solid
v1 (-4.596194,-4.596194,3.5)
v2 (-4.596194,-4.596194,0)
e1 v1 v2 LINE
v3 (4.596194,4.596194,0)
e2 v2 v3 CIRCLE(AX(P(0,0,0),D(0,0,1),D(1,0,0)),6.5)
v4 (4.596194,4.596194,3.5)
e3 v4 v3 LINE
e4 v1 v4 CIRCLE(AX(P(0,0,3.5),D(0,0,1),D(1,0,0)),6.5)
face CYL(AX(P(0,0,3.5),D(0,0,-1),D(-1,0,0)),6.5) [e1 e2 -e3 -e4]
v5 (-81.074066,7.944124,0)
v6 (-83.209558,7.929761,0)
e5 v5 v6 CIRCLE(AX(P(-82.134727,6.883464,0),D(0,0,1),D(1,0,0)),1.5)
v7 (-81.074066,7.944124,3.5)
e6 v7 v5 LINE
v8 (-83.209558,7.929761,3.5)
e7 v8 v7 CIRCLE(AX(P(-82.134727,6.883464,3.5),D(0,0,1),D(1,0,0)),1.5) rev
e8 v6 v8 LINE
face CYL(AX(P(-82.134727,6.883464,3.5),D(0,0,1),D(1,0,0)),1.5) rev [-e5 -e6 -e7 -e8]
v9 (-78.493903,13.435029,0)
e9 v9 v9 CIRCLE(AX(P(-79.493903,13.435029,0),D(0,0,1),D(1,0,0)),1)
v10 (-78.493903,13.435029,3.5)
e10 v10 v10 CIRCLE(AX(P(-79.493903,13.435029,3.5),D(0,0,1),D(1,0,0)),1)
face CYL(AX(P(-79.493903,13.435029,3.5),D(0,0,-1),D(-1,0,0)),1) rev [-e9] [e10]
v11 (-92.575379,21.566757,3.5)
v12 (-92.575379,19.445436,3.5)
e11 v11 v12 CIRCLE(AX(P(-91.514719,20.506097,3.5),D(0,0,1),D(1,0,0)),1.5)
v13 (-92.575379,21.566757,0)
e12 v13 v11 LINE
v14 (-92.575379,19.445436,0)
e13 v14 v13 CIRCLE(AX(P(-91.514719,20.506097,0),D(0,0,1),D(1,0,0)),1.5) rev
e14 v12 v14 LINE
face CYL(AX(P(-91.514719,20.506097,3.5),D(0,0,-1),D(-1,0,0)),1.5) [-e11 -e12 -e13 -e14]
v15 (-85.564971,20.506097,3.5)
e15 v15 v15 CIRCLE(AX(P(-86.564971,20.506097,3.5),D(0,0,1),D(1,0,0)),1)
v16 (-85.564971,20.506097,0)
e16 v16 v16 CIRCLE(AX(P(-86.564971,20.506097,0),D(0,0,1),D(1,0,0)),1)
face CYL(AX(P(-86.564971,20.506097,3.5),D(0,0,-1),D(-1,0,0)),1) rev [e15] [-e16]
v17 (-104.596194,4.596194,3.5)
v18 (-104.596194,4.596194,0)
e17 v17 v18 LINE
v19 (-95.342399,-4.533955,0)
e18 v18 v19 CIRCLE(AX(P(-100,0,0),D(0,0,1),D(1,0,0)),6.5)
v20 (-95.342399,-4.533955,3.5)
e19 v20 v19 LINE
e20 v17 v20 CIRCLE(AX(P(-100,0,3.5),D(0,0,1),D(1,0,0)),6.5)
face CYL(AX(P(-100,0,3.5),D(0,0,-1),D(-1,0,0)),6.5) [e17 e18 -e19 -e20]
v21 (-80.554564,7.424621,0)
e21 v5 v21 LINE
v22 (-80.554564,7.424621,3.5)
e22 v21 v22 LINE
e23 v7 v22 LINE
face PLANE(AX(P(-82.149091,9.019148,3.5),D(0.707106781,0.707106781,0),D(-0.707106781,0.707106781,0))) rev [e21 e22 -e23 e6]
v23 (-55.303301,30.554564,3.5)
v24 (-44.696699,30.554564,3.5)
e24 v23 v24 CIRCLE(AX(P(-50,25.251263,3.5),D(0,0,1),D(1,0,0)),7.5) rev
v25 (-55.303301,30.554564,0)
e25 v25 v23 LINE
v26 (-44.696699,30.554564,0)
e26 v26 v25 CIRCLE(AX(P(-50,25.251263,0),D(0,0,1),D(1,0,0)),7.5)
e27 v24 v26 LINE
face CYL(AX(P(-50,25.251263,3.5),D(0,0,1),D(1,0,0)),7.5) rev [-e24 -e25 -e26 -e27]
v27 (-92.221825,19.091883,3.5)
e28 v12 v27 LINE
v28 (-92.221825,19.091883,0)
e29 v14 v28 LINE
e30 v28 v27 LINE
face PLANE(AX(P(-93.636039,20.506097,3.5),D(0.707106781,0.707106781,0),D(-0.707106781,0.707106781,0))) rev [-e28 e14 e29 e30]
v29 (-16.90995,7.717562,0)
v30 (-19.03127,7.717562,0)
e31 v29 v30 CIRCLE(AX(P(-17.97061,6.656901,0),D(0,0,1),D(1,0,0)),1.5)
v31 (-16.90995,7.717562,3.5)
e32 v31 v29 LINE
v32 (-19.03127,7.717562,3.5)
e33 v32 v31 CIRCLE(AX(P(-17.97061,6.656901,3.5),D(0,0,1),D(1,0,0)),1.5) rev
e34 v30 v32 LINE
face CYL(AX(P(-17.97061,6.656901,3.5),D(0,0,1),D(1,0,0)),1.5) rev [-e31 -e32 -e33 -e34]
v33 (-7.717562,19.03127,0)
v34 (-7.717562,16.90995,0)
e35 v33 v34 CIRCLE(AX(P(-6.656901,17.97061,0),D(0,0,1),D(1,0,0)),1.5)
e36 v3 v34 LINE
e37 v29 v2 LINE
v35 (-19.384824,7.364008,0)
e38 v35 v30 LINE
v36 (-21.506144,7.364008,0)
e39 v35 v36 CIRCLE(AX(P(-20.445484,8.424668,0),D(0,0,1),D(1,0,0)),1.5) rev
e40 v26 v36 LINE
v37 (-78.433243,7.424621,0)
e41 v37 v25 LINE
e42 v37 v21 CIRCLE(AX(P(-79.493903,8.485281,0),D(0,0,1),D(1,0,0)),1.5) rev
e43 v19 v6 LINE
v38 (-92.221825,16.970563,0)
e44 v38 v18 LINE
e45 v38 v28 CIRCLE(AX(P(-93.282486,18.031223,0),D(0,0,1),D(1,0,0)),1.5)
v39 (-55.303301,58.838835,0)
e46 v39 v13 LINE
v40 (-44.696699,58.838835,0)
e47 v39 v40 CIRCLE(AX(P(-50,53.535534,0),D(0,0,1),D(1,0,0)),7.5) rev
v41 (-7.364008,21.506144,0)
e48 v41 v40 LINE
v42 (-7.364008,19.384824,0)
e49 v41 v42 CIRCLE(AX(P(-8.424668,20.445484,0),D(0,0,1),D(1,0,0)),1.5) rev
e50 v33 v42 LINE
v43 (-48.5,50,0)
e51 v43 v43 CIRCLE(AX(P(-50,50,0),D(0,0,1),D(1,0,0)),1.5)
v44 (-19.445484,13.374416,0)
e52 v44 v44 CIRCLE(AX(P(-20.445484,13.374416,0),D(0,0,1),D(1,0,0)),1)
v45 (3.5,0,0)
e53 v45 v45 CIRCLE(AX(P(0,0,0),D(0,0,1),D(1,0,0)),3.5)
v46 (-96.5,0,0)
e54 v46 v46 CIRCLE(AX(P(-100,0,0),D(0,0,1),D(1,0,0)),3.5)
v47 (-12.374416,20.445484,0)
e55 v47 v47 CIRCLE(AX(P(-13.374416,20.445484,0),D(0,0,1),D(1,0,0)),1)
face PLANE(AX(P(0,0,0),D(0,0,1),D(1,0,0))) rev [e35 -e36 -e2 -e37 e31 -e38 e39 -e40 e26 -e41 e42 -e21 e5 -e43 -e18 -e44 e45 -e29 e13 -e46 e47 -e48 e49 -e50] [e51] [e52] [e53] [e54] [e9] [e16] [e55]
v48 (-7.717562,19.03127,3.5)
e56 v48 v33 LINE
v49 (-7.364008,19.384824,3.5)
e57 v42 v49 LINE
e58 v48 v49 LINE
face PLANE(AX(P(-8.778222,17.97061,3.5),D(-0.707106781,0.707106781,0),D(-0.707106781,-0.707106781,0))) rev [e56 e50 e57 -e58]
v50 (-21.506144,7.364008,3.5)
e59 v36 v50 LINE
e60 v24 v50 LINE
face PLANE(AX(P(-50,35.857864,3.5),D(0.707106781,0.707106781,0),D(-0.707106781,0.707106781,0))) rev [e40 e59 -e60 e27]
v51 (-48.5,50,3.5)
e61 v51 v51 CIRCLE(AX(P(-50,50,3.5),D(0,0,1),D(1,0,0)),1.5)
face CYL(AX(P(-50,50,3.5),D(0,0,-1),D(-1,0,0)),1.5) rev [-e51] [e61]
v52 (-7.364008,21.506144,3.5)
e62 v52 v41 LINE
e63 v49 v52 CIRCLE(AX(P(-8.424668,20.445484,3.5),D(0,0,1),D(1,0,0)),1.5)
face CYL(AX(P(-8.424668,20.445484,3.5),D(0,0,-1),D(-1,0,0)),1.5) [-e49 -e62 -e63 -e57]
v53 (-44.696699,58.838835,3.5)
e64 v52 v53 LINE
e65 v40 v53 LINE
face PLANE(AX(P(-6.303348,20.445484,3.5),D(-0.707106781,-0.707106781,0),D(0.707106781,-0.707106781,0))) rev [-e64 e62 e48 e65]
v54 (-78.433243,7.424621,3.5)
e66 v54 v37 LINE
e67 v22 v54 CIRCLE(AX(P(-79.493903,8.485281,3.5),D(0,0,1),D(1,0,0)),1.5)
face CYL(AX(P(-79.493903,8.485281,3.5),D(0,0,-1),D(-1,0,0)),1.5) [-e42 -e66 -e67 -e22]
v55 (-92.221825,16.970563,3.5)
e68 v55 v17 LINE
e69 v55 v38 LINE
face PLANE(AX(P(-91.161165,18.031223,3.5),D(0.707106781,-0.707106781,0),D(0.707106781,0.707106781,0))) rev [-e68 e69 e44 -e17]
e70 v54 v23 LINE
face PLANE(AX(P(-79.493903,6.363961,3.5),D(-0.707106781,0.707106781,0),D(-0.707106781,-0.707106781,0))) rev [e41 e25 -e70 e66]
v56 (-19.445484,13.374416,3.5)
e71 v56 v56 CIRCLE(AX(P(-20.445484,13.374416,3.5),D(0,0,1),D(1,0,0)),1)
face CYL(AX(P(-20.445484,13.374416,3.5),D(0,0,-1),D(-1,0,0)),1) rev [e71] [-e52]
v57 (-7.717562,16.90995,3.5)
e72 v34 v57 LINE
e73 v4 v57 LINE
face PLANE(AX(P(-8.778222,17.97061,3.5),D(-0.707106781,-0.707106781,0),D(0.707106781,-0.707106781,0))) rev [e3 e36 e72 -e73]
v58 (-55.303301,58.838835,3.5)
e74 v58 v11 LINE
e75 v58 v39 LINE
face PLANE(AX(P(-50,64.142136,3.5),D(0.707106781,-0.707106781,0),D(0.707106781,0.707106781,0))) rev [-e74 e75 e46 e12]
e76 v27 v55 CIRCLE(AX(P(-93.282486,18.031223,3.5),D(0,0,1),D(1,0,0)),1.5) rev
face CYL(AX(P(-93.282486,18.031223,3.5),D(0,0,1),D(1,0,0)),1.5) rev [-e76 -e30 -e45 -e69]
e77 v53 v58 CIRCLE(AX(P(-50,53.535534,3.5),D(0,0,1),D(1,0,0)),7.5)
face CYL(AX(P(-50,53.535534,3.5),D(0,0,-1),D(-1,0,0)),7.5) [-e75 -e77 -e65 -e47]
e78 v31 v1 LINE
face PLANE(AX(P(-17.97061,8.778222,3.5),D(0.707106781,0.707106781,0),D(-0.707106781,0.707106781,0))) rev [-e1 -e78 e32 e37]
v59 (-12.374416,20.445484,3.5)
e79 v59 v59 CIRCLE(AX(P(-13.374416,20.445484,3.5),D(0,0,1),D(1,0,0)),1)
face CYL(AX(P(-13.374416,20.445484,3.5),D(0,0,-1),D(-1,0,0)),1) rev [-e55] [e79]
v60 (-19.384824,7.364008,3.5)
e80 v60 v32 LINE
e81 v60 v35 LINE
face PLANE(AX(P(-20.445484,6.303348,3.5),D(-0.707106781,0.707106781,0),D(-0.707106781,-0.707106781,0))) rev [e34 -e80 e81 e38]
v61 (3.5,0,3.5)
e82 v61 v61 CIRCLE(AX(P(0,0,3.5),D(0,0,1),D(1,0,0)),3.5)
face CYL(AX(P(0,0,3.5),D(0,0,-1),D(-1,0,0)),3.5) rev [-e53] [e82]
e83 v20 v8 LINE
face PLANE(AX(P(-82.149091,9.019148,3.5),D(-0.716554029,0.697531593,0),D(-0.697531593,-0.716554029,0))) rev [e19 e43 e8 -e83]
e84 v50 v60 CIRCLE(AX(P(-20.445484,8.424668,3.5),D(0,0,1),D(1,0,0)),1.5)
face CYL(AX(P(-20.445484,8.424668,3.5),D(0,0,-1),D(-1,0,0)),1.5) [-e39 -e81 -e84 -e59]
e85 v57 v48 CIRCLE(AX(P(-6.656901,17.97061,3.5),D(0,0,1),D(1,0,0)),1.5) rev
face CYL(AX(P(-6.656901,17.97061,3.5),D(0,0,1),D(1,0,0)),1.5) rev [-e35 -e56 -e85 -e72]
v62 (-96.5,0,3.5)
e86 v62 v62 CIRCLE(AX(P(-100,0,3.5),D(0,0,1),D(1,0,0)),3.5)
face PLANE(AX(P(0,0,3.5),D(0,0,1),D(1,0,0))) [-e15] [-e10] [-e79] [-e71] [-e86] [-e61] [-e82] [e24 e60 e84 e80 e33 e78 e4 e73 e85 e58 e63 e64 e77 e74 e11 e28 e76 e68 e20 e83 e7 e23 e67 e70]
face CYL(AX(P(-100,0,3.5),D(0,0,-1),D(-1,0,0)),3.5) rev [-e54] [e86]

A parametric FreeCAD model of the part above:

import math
import FreeCAD as App
import Part
import Sketcher
from FreeCAD import Vector


def edges_at(feature, points):
    """Names of the edges that pass closest to the given points."""
    edges = feature.Shape.Edges
    near = lambda p: min(range(len(edges)), key=lambda i: edges[i].distToShape(Part.Vertex(*p))[0])
    return sorted({f"Edge{near(p) + 1}" for p in points})

doc = App.newDocument("Part")
params = doc.addObject("Spreadsheet::Sheet", "Params")
for row, (alias, value) in enumerate([
    ("sketch1_diameter", "7 mm"),
    ("sketch1_diameter2", "2 mm"),
    ("sketch1_diameter3", "3 mm"),
    ("sketch1_radius", "6.5 mm"),
    ("sketch1_length", "19 mm"),
    ("pad1_length", "3.5 mm"),
    ("fillet_radius", "7.5 mm"),
    ("fillet2_radius", "7.5 mm"),
    ("fillet3_radius", "1.5 mm"),
    ("fillet4_radius", "1.5 mm"),
    ("fillet5_radius", "1.5 mm"),
], start=1):
    params.set(f"A{row}", alias)
    params.set(f"B{row}", "=" + value)
    params.setAlias(f"B{row}", alias)

body = doc.addObject("PartDesign::Body", "Body")

sketch1 = doc.addObject("Sketcher::SketchObject", "Sketch")
body.addObject(sketch1)
sketch1.AttachmentSupport = (doc.XY_Plane, [""])
sketch1.MapMode = "FlatFace"
sketch1.addGeometry([
    Part.LineSegment(Vector(-91.2, 18, 0), Vector(-104.6, 4.6, 0)),
    Part.ArcOfCircle(Part.Circle(Vector(-100, 0, 0), Vector(0, 0, 1), 6.5), math.radians(135), math.radians(316)),
    Part.LineSegment(Vector(-95.3, -4.5, 0), Vector(-82.1, 9, 0)),
    Part.LineSegment(Vector(-82.1, 9, 0), Vector(-79.5, 6.4, 0)),
    Part.LineSegment(Vector(-79.5, 6.4, 0), Vector(-50, 35.9, 0)),
    Part.LineSegment(Vector(-50, 35.9, 0), Vector(-20.4, 6.3, 0)),
    Part.LineSegment(Vector(-20.4, 6.3, 0), Vector(-18, 8.8, 0)),
    Part.LineSegment(Vector(-18, 8.8, 0), Vector(-4.6, -4.6, 0)),
    Part.ArcOfCircle(Part.Circle(Vector(0, 0, 0), Vector(0, 0, 1), 6.5), math.radians(-135), math.radians(45)),
    Part.LineSegment(Vector(4.6, 4.6, 0), Vector(-8.8, 18, 0)),
    Part.LineSegment(Vector(-8.8, 18, 0), Vector(-6.3, 20.4, 0)),
    Part.LineSegment(Vector(-6.3, 20.4, 0), Vector(-50, 64.1, 0)),
    Part.LineSegment(Vector(-50, 64.1, 0), Vector(-93.6, 20.5, 0)),
    Part.LineSegment(Vector(-93.6, 20.5, 0), Vector(-91.2, 18, 0)),
    Part.Circle(Vector(-100, 0, 0), Vector(0, 0, 1), 3.5),
    Part.Circle(Vector(-79.5, 13.4, 0), Vector(0, 0, 1), 1),
    Part.Circle(Vector(-86.6, 20.5, 0), Vector(0, 0, 1), 1),
    Part.Circle(Vector(0, 0, 0), Vector(0, 0, 1), 3.5),
    Part.Circle(Vector(-20.4, 13.4, 0), Vector(0, 0, 1), 1),
    Part.Circle(Vector(-13.4, 20.4, 0), Vector(0, 0, 1), 1),
    Part.Circle(Vector(-50, 50, 0), Vector(0, 0, 1), 1.5),
], False)
sketch1.addConstraint([
    Sketcher.Constraint("Tangent", 0, 2, 1, 1),
    Sketcher.Constraint("Tangent", 1, 2, 2, 1),
    Sketcher.Constraint("Coincident", 2, 2, 3, 1),
    Sketcher.Constraint("Coincident", 3, 2, 4, 1),
    Sketcher.Constraint("Coincident", 4, 2, 5, 1),
    Sketcher.Constraint("Coincident", 5, 2, 6, 1),
    Sketcher.Constraint("Coincident", 6, 2, 7, 1),
    Sketcher.Constraint("Tangent", 7, 2, 8, 1),
    Sketcher.Constraint("Tangent", 8, 2, 9, 1),
    Sketcher.Constraint("Coincident", 9, 2, 10, 1),
    Sketcher.Constraint("Coincident", 10, 2, 11, 1),
    Sketcher.Constraint("Coincident", 11, 2, 12, 1),
    Sketcher.Constraint("Coincident", 12, 2, 13, 1),
    Sketcher.Constraint("Coincident", 13, 2, 0, 1),
    Sketcher.Constraint("Coincident", 8, 3, -1, 1),
    Sketcher.Constraint("Coincident", 17, 3, -1, 1),
    Sketcher.Constraint("Coincident", 14, 3, 1, 3),
    Sketcher.Constraint("Equal", 1, 8),
    Sketcher.Constraint("Equal", 15, 16),
    Sketcher.Constraint("Equal", 14, 17),
    Sketcher.Constraint("Equal", 16, 18),
    Sketcher.Constraint("Equal", 18, 19),
    Sketcher.Constraint("PointOnObject", 1, 3, -1),
    Sketcher.Constraint("Perpendicular", 0, 3),
    Sketcher.Constraint("Perpendicular", 3, 4),
    Sketcher.Constraint("Perpendicular", 4, 5),
    Sketcher.Constraint("Perpendicular", 5, 6),
    Sketcher.Constraint("Perpendicular", 6, 7),
    Sketcher.Constraint("Parallel", 7, 9),
    Sketcher.Constraint("Perpendicular", 9, 10),
    Sketcher.Constraint("Perpendicular", 10, 11),
    Sketcher.Constraint("Perpendicular", 11, 12),
    Sketcher.Constraint("Perpendicular", 12, 13),
    Sketcher.Constraint("Horizontal", 0, 2, 8, 2),
    Sketcher.Constraint("Horizontal", 19, 3, 10, 2),
    Sketcher.Constraint("Horizontal", 16, 3, 12, 2),
    Sketcher.Constraint("Vertical", 15, 3, 3, 2),
    Sketcher.Constraint("Vertical", 20, 3, 4, 2),
    Sketcher.Constraint("Vertical", 18, 3, 5, 2),
    Sketcher.Constraint("Vertical", 4, 2, 11, 2),
    Sketcher.Constraint("Equal", 2, 7),
    Sketcher.Constraint("Equal", 7, 9),
    Sketcher.Constraint("Equal", 6, 10),
    Sketcher.Constraint("Equal", 10, 13),
    Sketcher.Constraint("Diameter", 14, 7.0),
    Sketcher.Constraint("Diameter", 15, 2.0),
    Sketcher.Constraint("Diameter", 20, 3.0),
    Sketcher.Constraint("Radius", 1, 6.5),
    Sketcher.Constraint("Distance", 0, 19.0),
    Sketcher.Constraint("DistanceX", 1, 3, -1, 1, 100.0),
    Sketcher.Constraint("DistanceY", -1, 1, 20, 3, 50.0),
    Sketcher.Constraint("Distance", 6, 3.5),
    Sketcher.Constraint("DistanceX", 1, 2, -1, 1, 95.342399),
    Sketcher.Constraint("Distance", 2, 18.91428),
    Sketcher.Constraint("DistanceY", -1, 1, 15, 3, 13.435029),
    Sketcher.Constraint("DistanceX", 16, 3, -1, 1, 86.564971),
    Sketcher.Constraint("DistanceY", 18, 3, 16, 3, 7.131681),
    Sketcher.Constraint("DistanceX", 19, 3, 8, 2, 17.97061),
])
sketch1.setExpression("Constraints[44]", "Params.sketch1_diameter")
sketch1.setExpression("Constraints[45]", "Params.sketch1_diameter2")
sketch1.setExpression("Constraints[46]", "Params.sketch1_diameter3")
sketch1.setExpression("Constraints[47]", "Params.sketch1_radius")
sketch1.setExpression("Constraints[48]", "Params.sketch1_length")
pad1 = doc.addObject("PartDesign::Pad", "Pad")
body.addObject(pad1)
pad1.Profile = sketch1
pad1.setExpression("Length", "Params.pad1_length")
doc.recompute()

fillet = doc.addObject("PartDesign::Fillet", "Fillet")
body.addObject(fillet)
fillet.Base = (pad1, edges_at(pad1, [(-50, 64.142, 1.75)]))
fillet.setExpression("Radius", "Params.fillet_radius")
doc.recompute()

fillet2 = doc.addObject("PartDesign::Fillet", "Fillet001")
body.addObject(fillet2)
fillet2.Base = (fillet, edges_at(fillet, [(-50, 35.858, 1.75)]))
fillet2.setExpression("Radius", "Params.fillet2_radius")
doc.recompute()

fillet3 = doc.addObject("PartDesign::Fillet", "Fillet002")
body.addObject(fillet3)
fillet3.Base = (fillet2, edges_at(fillet2, [
    (-82.149, 9.019, 1.75),
    (-93.636, 20.506, 1.75),
    (-17.971, 8.778, 1.75),
    (-20.445, 6.303, 1.75),
    (-79.494, 6.364, 1.75),
]))
fillet3.setExpression("Radius", "Params.fillet3_radius")
doc.recompute()

fillet4 = doc.addObject("PartDesign::Fillet", "Fillet003")
body.addObject(fillet4)
fillet4.Base = (fillet3, edges_at(fillet3, [(-6.303, 20.445, 1.75), (-8.778, 17.971, 1.75)]))
fillet4.setExpression("Radius", "Params.fillet4_radius")
doc.recompute()

fillet5 = doc.addObject("PartDesign::Fillet", "Fillet004")
body.addObject(fillet5)
fillet5.Base = (fillet4, edges_at(fillet4, [(-91.161, 18.031, 1.75)]))
fillet5.setExpression("Radius", "Params.fillet5_radius")

doc.recompute()
